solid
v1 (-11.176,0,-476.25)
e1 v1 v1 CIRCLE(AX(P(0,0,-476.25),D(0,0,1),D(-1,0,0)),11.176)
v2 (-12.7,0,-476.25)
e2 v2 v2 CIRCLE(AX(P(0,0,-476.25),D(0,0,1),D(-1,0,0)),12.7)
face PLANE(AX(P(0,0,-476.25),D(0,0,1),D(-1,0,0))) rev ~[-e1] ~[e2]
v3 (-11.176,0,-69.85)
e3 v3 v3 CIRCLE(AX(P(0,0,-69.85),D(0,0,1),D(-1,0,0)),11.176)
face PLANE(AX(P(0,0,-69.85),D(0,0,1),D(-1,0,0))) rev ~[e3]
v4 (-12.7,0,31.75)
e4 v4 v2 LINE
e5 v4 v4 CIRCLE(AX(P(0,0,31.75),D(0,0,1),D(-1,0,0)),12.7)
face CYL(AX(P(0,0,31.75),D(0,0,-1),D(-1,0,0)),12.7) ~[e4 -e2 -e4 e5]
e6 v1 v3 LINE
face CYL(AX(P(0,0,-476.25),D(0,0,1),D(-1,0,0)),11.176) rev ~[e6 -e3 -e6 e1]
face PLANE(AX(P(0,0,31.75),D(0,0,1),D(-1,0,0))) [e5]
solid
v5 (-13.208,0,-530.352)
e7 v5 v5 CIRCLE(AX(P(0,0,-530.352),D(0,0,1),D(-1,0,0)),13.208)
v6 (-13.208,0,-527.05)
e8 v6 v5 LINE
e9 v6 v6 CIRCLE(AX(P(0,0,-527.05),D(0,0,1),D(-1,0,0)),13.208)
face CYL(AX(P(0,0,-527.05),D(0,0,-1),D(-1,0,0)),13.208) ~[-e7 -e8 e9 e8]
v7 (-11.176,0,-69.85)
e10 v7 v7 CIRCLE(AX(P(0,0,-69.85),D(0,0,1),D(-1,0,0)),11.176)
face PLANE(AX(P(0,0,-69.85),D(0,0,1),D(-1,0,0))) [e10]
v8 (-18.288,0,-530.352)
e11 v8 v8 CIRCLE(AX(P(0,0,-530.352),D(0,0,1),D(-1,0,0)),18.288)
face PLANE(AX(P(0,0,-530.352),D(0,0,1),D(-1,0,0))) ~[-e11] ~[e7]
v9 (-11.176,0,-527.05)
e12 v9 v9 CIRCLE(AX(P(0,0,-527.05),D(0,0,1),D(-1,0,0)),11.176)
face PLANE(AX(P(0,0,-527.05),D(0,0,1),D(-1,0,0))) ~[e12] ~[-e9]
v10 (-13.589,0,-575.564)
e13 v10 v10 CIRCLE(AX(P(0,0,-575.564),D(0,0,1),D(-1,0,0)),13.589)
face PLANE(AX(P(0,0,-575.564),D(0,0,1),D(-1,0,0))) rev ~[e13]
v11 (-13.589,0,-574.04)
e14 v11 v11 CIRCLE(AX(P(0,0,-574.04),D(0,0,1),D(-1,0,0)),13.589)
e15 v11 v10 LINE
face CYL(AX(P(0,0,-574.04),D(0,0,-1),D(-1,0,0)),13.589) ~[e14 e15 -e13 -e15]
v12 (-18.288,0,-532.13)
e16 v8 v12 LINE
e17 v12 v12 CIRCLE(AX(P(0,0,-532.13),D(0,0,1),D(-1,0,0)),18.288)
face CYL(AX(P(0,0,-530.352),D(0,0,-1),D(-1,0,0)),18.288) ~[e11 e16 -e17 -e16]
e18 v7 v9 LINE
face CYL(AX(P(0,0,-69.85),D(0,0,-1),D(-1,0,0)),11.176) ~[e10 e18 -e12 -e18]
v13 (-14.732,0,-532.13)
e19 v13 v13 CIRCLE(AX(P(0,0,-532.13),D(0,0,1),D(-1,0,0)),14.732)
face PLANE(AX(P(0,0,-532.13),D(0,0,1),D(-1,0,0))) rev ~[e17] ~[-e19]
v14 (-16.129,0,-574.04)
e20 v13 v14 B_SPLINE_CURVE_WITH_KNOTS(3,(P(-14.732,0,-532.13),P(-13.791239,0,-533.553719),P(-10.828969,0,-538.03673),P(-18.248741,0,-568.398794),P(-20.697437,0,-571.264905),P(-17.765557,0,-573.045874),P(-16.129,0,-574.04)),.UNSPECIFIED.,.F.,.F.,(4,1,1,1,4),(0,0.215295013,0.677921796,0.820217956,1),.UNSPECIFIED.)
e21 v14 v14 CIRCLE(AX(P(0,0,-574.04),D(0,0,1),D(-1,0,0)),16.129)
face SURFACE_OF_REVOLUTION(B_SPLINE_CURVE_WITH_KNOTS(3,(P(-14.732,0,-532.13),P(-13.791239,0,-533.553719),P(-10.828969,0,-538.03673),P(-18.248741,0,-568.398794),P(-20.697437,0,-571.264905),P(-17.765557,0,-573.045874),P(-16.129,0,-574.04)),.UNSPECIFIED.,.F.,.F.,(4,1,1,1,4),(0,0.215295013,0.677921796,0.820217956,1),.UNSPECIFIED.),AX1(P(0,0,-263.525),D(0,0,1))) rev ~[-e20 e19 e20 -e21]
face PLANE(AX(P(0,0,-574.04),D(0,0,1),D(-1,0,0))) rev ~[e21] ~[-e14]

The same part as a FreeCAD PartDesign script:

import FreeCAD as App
import Part
import Sketcher
Q = App.Units.Quantity


def add_polygon(sketch, points):
    """Adds a closed chain of lines whose ends are joined by coincident constraints."""
    first, n = sketch.GeometryCount, len(points)
    for a, b in zip(points, points[1:] + points[:1]):
        sketch.addGeometry(Part.LineSegment(App.Vector(*a, 0), App.Vector(*b, 0)), False)
    for i in range(n):
        sketch.addConstraint(Sketcher.Constraint("Coincident", first + i, 2, first + (i + 1) % n, 1))

doc = App.newDocument("Part")
body = doc.addObject("PartDesign::Body", "Body")

# Sketch on XZ plane
sketch1 = body.newObject("Sketcher::SketchObject", "Sketch")
sketch1.AttachmentSupport = (doc.getObject("XZ_Plane"), [""])
sketch1.MapMode = "FlatFace"
add_polygon(sketch1, [(-12.7, 31.75), (-12.7, -476.25), (-11.176, -476.25), (-11.176, -69.85), (0, -69.85), (0, 31.75)])  # lines 0-5
sketch1.addConstraint(Sketcher.Constraint("Vertical", 0))
sketch1.addConstraint(Sketcher.Constraint("Horizontal", 1))
sketch1.addConstraint(Sketcher.Constraint("Vertical", 2))
sketch1.addConstraint(Sketcher.Constraint("Horizontal", 3))
sketch1.addConstraint(Sketcher.Constraint("Vertical", 4))
sketch1.addConstraint(Sketcher.Constraint("Horizontal", 5))
sketch1.addConstraint(Sketcher.Constraint("PointOnObject", 3, 2, -2))
sketch1.addConstraint(Sketcher.Constraint("DistanceY", 0, 2, 0, 1, Q("20 in")))
sketch1.addConstraint(Sketcher.Constraint("DistanceY", 2, 1, 2, 2, Q("16 in")))
sketch1.addConstraint(Sketcher.Constraint("DistanceX", 5, 2, 5, 1, Q("0.5 in")))
sketch1.addConstraint(Sketcher.Constraint("DistanceX", 1, 1, 1, 2, Q("0.06 in")))
sketch1.addConstraint(Sketcher.Constraint("DistanceY", 0, 2, -1, 1, Q("18.75 in")))
revolution = body.newObject("PartDesign::Revolution", "Revolution")
revolution.Profile = sketch1
revolution.ReferenceAxis = (sketch1, ["V_Axis"])
revolution.Angle = 360
body2 = doc.addObject("PartDesign::Body", "Body001")

# Sketch on XZ plane
sketch2 = body2.newObject("Sketcher::SketchObject", "Sketch001")
sketch2.AttachmentSupport = (doc.getObject("XZ_Plane001"), [""])
sketch2.MapMode = "FlatFace"
sketch2.addGeometry(Part.LineSegment(App.Vector(0, -575.564, 0), App.Vector(0, -69.85, 0)), False)
sketch2.addGeometry(Part.LineSegment(App.Vector(0, -69.85, 0), App.Vector(-11.176, -69.85, 0)), False)
sketch2.addGeometry(Part.LineSegment(App.Vector(-11.176, -69.85, 0), App.Vector(-11.176, -527.05, 0)), False)
sketch2.addGeometry(Part.LineSegment(App.Vector(-11.176, -527.05, 0), App.Vector(-13.208, -527.05, 0)), False)
sketch2.addGeometry(Part.LineSegment(App.Vector(-13.208, -527.05, 0), App.Vector(-13.208, -530.352, 0)), False)
sketch2.addGeometry(Part.LineSegment(App.Vector(-13.208, -530.352, 0), App.Vector(-18.288, -530.352, 0)), False)
sketch2.addGeometry(Part.LineSegment(App.Vector(-18.288, -530.352, 0), App.Vector(-18.288, -532.13, 0)), False)
sketch2.addGeometry(Part.LineSegment(App.Vector(-18.288, -532.13, 0), App.Vector(-14.732, -532.13, 0)), False)
sketch2.addGeometry(Part.BSplineCurve([App.Vector(-14.732, -532.13, 0), App.Vector(-13.791239, -533.553719, 0), App.Vector(-10.828969, -538.03673, 0), App.Vector(-18.248741, -568.398794, 0), App.Vector(-20.697437, -571.264905, 0), App.Vector(-17.765557, -573.045874, 0), App.Vector(-16.129, -574.04, 0)], [4, 1, 1, 1, 4], [0, 0.215295013, 0.677921796, 0.820217956, 1], False, 3, [1, 1, 1, 1, 1, 1, 1], False), False)
sketch2.addGeometry(Part.LineSegment(App.Vector(-16.129, -574.04, 0), App.Vector(-13.589, -574.04, 0)), False)
sketch2.addGeometry(Part.LineSegment(App.Vector(-13.589, -574.04, 0), App.Vector(-13.589, -575.564, 0)), False)
sketch2.addGeometry(Part.LineSegment(App.Vector(-13.589, -575.564, 0), App.Vector(0, -575.564, 0)), False)
sketch2.addConstraint(Sketcher.Constraint("Block", 8))
sketch2.addConstraint(Sketcher.Constraint("Coincident", 0, 2, 1, 1))
sketch2.addConstraint(Sketcher.Constraint("Coincident", 1, 2, 2, 1))
sketch2.addConstraint(Sketcher.Constraint("Coincident", 2, 2, 3, 1))
sketch2.addConstraint(Sketcher.Constraint("Coincident", 3, 2, 4, 1))
sketch2.addConstraint(Sketcher.Constraint("Coincident", 4, 2, 5, 1))
sketch2.addConstraint(Sketcher.Constraint("Coincident", 5, 2, 6, 1))
sketch2.addConstraint(Sketcher.Constraint("Coincident", 6, 2, 7, 1))
sketch2.addConstraint(Sketcher.Constraint("Coincident", 7, 2, 8, 1))
sketch2.addConstraint(Sketcher.Constraint("Coincident", 8, 2, 9, 1))
sketch2.addConstraint(Sketcher.Constraint("Coincident", 9, 2, 10, 1))
sketch2.addConstraint(Sketcher.Constraint("Coincident", 10, 2, 11, 1))
sketch2.addConstraint(Sketcher.Constraint("Coincident", 11, 2, 0, 1))
sketch2.addConstraint(Sketcher.Constraint("Vertical", 0))
sketch2.addConstraint(Sketcher.Constraint("Horizontal", 1))
sketch2.addConstraint(Sketcher.Constraint("Vertical", 2))
sketch2.addConstraint(Sketcher.Constraint("Horizontal", 3))
sketch2.addConstraint(Sketcher.Constraint("Vertical", 4))
sketch2.addConstraint(Sketcher.Constraint("Horizontal", 5))
sketch2.addConstraint(Sketcher.Constraint("Vertical", 6))
sketch2.addConstraint(Sketcher.Constraint("Horizontal", 7))
sketch2.addConstraint(Sketcher.Constraint("Horizontal", 9))
sketch2.addConstraint(Sketcher.Constraint("Vertical", 10))
sketch2.addConstraint(Sketcher.Constraint("Horizontal", 11))
sketch2.addConstraint(Sketcher.Constraint("PointOnObject", 0, 2, -2))
sketch2.addConstraint(Sketcher.Constraint("DistanceY", 2, 2, 2, 1, Q("18 in")))
sketch2.addConstraint(Sketcher.Constraint("DistanceX", 5, 2, 5, 1, Q("0.2 in")))
sketch2.addConstraint(Sketcher.Constraint("DistanceX", 9, 1, 9, 2, Q("0.1 in")))
sketch2.addConstraint(Sketcher.Constraint("DistanceX", 1, 2, 1, 1, Q("0.44 in")))
sketch2.addConstraint(Sketcher.Constraint("DistanceX", 3, 2, 3, 1, Q("0.08 in")))
sketch2.addConstraint(Sketcher.Constraint("DistanceY", 0, 1, 0, 2, Q("19.91 in")))
sketch2.addConstraint(Sketcher.Constraint("DistanceY", 4, 2, 4, 1, Q("0.13 in")))
sketch2.addConstraint(Sketcher.Constraint("DistanceY", 6, 2, 6, 1, Q("0.07 in")))
revolution2 = body2.newObject("PartDesign::Revolution", "Revolution001")
revolution2.Profile = sketch2
revolution2.ReferenceAxis = (sketch2, ["V_Axis"])
revolution2.Angle = 360

doc.recompute()
